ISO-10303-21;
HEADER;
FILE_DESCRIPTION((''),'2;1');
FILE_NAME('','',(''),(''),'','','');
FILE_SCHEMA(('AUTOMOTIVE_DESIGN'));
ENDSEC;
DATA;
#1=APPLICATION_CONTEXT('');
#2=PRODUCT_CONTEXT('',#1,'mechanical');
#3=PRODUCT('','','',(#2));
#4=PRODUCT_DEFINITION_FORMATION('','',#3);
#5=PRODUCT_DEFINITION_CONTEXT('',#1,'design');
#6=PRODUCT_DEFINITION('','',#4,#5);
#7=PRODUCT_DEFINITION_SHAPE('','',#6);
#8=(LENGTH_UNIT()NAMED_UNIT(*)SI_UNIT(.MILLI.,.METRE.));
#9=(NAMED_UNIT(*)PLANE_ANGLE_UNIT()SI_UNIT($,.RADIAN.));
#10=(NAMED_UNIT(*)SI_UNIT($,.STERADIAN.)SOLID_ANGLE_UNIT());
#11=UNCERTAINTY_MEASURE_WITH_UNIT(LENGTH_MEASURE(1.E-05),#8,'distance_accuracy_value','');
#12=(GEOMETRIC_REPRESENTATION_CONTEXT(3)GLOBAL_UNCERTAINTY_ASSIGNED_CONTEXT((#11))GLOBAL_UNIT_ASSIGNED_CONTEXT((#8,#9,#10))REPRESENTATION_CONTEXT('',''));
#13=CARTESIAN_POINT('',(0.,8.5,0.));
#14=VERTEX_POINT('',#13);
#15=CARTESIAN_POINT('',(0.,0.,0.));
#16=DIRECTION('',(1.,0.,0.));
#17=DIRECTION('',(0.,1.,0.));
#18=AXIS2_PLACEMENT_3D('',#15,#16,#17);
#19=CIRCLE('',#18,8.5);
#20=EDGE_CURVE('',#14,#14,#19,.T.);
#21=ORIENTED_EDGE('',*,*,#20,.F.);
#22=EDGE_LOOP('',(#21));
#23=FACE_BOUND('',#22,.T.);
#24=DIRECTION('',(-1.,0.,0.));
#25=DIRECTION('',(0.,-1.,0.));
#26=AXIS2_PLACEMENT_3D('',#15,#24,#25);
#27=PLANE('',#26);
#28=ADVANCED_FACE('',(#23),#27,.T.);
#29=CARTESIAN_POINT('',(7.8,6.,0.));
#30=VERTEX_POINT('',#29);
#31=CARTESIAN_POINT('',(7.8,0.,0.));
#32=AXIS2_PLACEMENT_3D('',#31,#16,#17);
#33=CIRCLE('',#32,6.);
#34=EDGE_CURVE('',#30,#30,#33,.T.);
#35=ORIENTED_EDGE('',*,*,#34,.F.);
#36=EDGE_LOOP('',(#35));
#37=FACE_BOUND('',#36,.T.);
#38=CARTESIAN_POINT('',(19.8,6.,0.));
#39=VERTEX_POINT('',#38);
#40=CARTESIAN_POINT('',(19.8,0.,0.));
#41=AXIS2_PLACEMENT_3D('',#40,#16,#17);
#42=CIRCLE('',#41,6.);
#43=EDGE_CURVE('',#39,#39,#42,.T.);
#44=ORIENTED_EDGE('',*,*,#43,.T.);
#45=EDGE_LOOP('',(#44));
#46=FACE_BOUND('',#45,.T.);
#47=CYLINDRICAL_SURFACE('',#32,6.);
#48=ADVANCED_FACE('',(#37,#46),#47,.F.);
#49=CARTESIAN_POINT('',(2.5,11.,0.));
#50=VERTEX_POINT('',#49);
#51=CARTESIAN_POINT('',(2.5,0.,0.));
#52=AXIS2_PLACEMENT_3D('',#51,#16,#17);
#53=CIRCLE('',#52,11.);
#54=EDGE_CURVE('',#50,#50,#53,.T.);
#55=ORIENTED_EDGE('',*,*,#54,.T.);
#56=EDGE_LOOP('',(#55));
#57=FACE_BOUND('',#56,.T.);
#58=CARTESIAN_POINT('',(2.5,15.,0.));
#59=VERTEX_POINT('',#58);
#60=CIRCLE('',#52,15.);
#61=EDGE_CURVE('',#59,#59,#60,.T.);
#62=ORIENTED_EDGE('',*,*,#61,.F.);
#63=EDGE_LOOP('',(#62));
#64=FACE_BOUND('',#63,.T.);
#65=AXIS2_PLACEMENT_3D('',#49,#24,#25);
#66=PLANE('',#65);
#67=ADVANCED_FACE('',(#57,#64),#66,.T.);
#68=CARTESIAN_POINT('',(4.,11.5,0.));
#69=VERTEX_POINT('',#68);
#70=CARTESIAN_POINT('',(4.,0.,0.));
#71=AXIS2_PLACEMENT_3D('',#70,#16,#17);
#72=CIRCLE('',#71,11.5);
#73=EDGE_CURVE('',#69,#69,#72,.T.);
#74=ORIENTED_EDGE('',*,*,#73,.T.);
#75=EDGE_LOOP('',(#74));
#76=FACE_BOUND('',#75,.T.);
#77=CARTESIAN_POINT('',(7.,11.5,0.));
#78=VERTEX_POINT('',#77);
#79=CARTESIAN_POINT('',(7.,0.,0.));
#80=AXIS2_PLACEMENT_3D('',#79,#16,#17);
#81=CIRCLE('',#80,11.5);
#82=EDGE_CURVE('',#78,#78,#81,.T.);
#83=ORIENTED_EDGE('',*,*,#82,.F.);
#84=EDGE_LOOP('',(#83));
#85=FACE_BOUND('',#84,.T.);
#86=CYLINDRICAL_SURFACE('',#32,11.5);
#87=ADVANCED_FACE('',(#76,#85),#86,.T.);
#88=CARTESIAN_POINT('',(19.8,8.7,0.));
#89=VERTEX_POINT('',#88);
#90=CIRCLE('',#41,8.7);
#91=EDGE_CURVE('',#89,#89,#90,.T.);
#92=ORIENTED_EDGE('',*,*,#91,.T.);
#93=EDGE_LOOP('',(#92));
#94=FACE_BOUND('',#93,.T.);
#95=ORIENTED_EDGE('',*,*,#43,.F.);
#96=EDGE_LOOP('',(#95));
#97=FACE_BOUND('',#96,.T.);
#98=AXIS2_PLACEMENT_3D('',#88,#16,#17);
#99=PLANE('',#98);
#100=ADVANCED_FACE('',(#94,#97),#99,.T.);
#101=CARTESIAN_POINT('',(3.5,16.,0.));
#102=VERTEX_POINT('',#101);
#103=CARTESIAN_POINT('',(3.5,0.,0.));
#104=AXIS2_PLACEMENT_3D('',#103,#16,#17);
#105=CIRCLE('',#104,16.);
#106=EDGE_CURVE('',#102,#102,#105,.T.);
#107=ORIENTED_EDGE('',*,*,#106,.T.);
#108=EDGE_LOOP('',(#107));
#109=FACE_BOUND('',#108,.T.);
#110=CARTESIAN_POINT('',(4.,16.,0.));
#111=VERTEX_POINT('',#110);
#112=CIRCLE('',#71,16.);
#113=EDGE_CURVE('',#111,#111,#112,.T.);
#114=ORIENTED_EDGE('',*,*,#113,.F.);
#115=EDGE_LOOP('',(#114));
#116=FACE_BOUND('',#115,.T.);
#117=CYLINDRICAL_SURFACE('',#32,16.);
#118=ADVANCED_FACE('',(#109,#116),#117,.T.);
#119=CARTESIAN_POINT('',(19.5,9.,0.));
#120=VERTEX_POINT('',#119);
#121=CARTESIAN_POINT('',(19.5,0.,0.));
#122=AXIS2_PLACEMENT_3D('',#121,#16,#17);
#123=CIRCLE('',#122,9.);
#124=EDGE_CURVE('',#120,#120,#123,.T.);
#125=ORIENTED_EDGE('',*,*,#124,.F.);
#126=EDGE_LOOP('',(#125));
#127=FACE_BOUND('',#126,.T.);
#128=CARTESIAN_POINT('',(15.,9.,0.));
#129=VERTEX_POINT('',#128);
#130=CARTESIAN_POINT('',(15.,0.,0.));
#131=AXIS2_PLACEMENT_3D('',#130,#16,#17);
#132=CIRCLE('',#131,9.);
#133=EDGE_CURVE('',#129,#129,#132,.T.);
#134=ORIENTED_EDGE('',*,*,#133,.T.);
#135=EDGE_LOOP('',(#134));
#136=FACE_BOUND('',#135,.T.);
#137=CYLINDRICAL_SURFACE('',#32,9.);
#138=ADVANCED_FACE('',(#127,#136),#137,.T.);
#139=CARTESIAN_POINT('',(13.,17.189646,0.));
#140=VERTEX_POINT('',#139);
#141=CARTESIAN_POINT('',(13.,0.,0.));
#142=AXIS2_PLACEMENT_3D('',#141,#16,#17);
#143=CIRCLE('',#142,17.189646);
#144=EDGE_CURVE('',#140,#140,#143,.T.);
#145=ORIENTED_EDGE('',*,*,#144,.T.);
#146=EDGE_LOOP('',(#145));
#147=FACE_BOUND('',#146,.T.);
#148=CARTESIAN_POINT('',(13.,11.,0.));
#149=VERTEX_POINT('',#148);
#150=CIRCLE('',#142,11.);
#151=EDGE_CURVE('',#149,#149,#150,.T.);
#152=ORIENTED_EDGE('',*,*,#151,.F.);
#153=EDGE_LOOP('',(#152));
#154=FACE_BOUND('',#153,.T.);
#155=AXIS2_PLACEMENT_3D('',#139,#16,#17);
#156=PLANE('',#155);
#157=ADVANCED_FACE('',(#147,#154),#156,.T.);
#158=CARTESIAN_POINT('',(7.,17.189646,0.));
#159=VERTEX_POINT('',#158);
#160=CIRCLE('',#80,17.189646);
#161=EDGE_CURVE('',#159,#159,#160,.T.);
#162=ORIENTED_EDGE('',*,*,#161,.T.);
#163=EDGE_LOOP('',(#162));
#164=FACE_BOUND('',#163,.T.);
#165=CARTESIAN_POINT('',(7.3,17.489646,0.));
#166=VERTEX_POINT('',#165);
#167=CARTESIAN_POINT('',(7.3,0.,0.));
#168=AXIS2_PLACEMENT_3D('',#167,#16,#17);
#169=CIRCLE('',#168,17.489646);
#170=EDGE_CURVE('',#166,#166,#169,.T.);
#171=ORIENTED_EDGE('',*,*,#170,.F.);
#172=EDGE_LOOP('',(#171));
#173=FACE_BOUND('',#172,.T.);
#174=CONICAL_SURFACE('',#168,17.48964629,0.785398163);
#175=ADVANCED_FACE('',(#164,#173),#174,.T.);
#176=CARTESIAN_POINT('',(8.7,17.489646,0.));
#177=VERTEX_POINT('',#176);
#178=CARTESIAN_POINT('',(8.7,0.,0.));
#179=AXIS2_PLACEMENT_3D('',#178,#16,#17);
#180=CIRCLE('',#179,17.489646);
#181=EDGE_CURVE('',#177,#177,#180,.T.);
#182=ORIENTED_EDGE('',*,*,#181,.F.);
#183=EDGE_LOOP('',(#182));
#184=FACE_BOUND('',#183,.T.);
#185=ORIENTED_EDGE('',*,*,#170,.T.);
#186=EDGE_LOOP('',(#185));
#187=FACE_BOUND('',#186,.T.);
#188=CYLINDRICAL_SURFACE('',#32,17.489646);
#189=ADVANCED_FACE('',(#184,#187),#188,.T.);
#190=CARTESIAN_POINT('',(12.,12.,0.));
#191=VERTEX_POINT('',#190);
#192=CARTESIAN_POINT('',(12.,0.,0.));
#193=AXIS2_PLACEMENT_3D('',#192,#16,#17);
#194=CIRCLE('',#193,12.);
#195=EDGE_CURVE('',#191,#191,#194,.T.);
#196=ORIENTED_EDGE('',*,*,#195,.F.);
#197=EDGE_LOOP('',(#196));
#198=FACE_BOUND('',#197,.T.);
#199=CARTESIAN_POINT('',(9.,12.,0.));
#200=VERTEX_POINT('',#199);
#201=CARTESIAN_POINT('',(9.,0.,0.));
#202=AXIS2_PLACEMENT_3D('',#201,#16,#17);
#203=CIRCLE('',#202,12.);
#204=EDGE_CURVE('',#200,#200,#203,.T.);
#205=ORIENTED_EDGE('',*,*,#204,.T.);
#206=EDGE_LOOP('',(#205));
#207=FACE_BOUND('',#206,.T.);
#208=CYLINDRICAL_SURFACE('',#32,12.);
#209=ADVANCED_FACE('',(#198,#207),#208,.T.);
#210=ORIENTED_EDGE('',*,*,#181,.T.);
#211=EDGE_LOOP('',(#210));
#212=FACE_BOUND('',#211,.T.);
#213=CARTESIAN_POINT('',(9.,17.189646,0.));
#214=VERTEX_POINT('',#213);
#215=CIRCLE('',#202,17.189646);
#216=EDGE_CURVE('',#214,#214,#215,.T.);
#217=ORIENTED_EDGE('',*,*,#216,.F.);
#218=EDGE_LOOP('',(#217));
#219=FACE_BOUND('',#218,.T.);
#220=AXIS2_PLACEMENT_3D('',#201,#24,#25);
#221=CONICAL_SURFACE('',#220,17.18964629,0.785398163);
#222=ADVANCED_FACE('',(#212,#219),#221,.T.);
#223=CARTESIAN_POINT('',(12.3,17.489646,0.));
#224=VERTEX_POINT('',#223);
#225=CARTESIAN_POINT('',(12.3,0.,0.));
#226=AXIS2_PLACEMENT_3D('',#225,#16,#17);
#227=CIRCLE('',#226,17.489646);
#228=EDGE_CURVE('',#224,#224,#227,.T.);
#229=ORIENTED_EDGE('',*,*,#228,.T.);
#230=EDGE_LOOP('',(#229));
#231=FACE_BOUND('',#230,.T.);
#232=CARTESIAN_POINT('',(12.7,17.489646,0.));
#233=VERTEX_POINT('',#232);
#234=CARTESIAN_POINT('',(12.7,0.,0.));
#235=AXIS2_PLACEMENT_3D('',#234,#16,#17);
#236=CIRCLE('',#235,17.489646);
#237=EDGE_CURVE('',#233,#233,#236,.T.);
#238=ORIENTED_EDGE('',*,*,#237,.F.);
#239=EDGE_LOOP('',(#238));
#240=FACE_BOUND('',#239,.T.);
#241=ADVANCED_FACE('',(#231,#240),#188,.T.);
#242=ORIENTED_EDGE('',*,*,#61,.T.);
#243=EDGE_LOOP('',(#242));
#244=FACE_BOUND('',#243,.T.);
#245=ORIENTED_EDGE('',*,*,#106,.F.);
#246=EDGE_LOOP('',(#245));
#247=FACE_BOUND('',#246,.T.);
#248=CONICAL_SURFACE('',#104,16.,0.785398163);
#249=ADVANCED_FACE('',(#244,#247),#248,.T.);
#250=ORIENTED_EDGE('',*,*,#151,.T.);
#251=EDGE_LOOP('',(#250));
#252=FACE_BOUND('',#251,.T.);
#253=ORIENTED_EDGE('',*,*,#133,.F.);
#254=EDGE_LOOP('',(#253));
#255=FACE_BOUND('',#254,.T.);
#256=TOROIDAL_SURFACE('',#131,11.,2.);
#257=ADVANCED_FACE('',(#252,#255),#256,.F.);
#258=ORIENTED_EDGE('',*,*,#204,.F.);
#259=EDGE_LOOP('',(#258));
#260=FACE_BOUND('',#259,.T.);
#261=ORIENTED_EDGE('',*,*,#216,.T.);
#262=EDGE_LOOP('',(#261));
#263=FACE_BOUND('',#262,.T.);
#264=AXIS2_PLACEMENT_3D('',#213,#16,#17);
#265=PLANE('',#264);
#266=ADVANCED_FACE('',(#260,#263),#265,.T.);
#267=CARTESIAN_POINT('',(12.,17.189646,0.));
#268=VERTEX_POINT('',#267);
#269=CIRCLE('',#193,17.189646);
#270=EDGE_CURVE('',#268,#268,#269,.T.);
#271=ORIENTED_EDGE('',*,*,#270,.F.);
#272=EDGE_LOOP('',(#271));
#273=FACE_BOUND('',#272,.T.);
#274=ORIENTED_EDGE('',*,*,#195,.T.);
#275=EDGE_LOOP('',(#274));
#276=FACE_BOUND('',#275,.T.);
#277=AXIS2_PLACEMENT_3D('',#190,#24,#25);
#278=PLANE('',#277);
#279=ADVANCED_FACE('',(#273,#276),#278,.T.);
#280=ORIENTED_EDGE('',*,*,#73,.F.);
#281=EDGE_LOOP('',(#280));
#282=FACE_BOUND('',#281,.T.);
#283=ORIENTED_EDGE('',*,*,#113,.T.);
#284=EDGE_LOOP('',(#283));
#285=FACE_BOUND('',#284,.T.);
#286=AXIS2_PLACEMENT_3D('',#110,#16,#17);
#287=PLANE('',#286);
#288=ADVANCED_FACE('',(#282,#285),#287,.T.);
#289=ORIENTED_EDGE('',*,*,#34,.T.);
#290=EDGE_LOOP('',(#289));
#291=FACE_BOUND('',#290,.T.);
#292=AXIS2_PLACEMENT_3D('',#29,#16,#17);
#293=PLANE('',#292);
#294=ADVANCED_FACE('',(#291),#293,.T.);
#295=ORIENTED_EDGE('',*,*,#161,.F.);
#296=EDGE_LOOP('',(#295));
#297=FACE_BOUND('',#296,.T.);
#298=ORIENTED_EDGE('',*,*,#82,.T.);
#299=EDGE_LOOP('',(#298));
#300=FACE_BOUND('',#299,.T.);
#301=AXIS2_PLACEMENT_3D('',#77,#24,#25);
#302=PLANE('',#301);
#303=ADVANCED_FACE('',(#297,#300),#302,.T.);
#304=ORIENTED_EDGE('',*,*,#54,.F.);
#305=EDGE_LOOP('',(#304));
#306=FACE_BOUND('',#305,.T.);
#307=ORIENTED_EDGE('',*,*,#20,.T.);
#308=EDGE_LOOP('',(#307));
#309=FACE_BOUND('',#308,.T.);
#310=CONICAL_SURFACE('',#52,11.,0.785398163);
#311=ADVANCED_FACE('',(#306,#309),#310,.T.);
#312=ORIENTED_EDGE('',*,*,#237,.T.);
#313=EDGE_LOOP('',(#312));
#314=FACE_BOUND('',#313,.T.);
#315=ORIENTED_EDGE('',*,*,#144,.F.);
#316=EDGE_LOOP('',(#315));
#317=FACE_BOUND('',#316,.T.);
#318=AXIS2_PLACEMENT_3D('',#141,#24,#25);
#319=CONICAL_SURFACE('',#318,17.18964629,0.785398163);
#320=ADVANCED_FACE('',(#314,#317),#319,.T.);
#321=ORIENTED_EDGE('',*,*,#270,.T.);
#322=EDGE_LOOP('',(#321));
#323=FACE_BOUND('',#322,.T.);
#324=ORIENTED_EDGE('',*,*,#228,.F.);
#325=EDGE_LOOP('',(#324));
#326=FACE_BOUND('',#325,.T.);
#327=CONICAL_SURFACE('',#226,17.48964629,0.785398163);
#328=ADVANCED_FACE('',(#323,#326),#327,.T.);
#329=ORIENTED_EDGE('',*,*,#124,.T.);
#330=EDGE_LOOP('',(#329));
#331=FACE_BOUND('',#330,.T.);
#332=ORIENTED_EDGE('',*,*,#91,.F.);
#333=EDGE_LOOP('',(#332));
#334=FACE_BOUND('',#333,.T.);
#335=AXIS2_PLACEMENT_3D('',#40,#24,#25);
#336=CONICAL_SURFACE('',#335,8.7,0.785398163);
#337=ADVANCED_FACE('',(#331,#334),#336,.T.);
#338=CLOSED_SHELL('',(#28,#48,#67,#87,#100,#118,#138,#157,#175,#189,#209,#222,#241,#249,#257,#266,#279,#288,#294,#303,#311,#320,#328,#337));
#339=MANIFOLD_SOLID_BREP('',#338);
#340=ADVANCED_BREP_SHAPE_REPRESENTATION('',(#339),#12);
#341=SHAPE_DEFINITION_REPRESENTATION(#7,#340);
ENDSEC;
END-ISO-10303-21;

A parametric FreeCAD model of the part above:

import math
import FreeCAD as App
import Part
import Sketcher
from FreeCAD import Vector

doc = App.newDocument("Part")
params = doc.addObject("Spreadsheet::Sheet", "Params")
for row, (alias, value) in enumerate([
    ("sketch1_radius", "2 mm"),
    ("sketch1_width", "12 mm"),
    ("sketch1_width2", "3 mm"),
    ("sketch1_height", "6 mm"),
    ("sketch1_height2", "4 mm"),
    ("revolution_angle", "360 deg"),
], start=1):
    params.set(f"A{row}", alias)
    params.set(f"B{row}", "=" + value)
    params.setAlias(f"B{row}", alias)

body = doc.addObject("PartDesign::Body", "Body")

# Sketch on XY plane
sketch1 = body.newObject("Sketcher::SketchObject", "Sketch")
sketch1.AttachmentSupport = (doc.getObject("XY_Plane"), [""])
sketch1.MapMode = "FlatFace"
sketch1.addGeometry([
    Part.LineSegment(Vector(0, 8.5, 0), Vector(0, 0, 0)),  # 0
    Part.LineSegment(Vector(0, 0, 0), Vector(7.8, 0, 0)),  # 1
    Part.LineSegment(Vector(7.8, 0, 0), Vector(7.8, 6, 0)),  # 2
    Part.LineSegment(Vector(7.8, 6, 0), Vector(19.8, 6, 0)),  # 3
    Part.LineSegment(Vector(19.8, 6, 0), Vector(19.8, 8.7, 0)),  # 4
    Part.LineSegment(Vector(19.8, 8.7, 0), Vector(19.5, 9, 0)),  # 5
    Part.LineSegment(Vector(19.5, 9, 0), Vector(15, 9, 0)),  # 6
    Part.ArcOfCircle(Part.Circle(Vector(15, 11, 0), Vector(0, 0, 1), 2), math.radians(-180), math.radians(-90)),  # 7
    Part.LineSegment(Vector(13, 11, 0), Vector(13, 17.19, 0)),  # 8
    Part.LineSegment(Vector(13, 17.19, 0), Vector(12.7, 17.49, 0)),  # 9
    Part.LineSegment(Vector(12.7, 17.49, 0), Vector(12.3, 17.49, 0)),  # 10
    Part.LineSegment(Vector(12.3, 17.49, 0), Vector(12, 17.19, 0)),  # 11
    Part.LineSegment(Vector(12, 17.19, 0), Vector(12, 12, 0)),  # 12
    Part.LineSegment(Vector(12, 12, 0), Vector(9, 12, 0)),  # 13
    Part.LineSegment(Vector(9, 12, 0), Vector(9, 17.19, 0)),  # 14
    Part.LineSegment(Vector(9, 17.19, 0), Vector(8.7, 17.49, 0)),  # 15
    Part.LineSegment(Vector(8.7, 17.49, 0), Vector(7.3, 17.49, 0)),  # 16
    Part.LineSegment(Vector(7.3, 17.49, 0), Vector(7, 17.19, 0)),  # 17
    Part.LineSegment(Vector(7, 17.19, 0), Vector(7, 11.5, 0)),  # 18
    Part.LineSegment(Vector(7, 11.5, 0), Vector(4, 11.5, 0)),  # 19
    Part.LineSegment(Vector(4, 11.5, 0), Vector(4, 16, 0)),  # 20
    Part.LineSegment(Vector(4, 16, 0), Vector(3.5, 16, 0)),  # 21
    Part.LineSegment(Vector(3.5, 16, 0), Vector(2.5, 15, 0)),  # 22
    Part.LineSegment(Vector(2.5, 15, 0), Vector(2.5, 11, 0)),  # 23
    Part.LineSegment(Vector(2.5, 11, 0), Vector(0, 8.5, 0)),  # 24
], False)
sketch1.addConstraint([
    Sketcher.Constraint("Coincident", 0, 2, 1, 1),
    Sketcher.Constraint("Coincident", 1, 2, 2, 1),
    Sketcher.Constraint("Coincident", 2, 2, 3, 1),
    Sketcher.Constraint("Coincident", 3, 2, 4, 1),
    Sketcher.Constraint("Coincident", 4, 2, 5, 1),
    Sketcher.Constraint("Coincident", 5, 2, 6, 1),
    Sketcher.Constraint("Tangent", 6, 2, 7, 2),
    Sketcher.Constraint("Tangent", 7, 1, 8, 1),
    Sketcher.Constraint("Coincident", 8, 2, 9, 1),
    Sketcher.Constraint("Coincident", 9, 2, 10, 1),
    Sketcher.Constraint("Coincident", 10, 2, 11, 1),
    Sketcher.Constraint("Coincident", 11, 2, 12, 1),
    Sketcher.Constraint("Coincident", 12, 2, 13, 1),
    Sketcher.Constraint("Coincident", 13, 2, 14, 1),
    Sketcher.Constraint("Coincident", 14, 2, 15, 1),
    Sketcher.Constraint("Coincident", 15, 2, 16, 1),
    Sketcher.Constraint("Coincident", 16, 2, 17, 1),
    Sketcher.Constraint("Coincident", 17, 2, 18, 1),
    Sketcher.Constraint("Coincident", 18, 2, 19, 1),
    Sketcher.Constraint("Coincident", 19, 2, 20, 1),
    Sketcher.Constraint("Coincident", 20, 2, 21, 1),
    Sketcher.Constraint("Coincident", 21, 2, 22, 1),
    Sketcher.Constraint("Coincident", 22, 2, 23, 1),
    Sketcher.Constraint("Coincident", 23, 2, 24, 1),
    Sketcher.Constraint("Coincident", 24, 2, 0, 1),
    Sketcher.Constraint("Vertical", 0),
    Sketcher.Constraint("Horizontal", 1),
    Sketcher.Constraint("Vertical", 2),
    Sketcher.Constraint("Horizontal", 3),
    Sketcher.Constraint("Vertical", 4),
    Sketcher.Constraint("Horizontal", 6),
    Sketcher.Constraint("Vertical", 8),
    Sketcher.Constraint("Horizontal", 10),
    Sketcher.Constraint("Vertical", 12),
    Sketcher.Constraint("Horizontal", 13),
    Sketcher.Constraint("Vertical", 14),
    Sketcher.Constraint("Horizontal", 16),
    Sketcher.Constraint("Vertical", 18),
    Sketcher.Constraint("Horizontal", 19),
    Sketcher.Constraint("Vertical", 20),
    Sketcher.Constraint("Horizontal", 21),
    Sketcher.Constraint("Vertical", 23),
    Sketcher.Constraint("Coincident", 0, 2, -1, 1),
    Sketcher.Constraint("Parallel", 5, 9),
    Sketcher.Constraint("Perpendicular", 9, 11),
    Sketcher.Constraint("Perpendicular", 11, 15),
    Sketcher.Constraint("Perpendicular", 15, 17),
    Sketcher.Constraint("Parallel", 17, 22),
    Sketcher.Constraint("Parallel", 22, 24),
    Sketcher.Constraint("Horizontal", 8, 2, 11, 2),
    Sketcher.Constraint("Horizontal", 11, 2, 14, 2),
    Sketcher.Constraint("Horizontal", 10, 2, 15, 2),
    Sketcher.Constraint("Horizontal", 14, 2, 17, 2),
    Sketcher.Constraint("Horizontal", 7, 1, 23, 2),
    Sketcher.Constraint("Equal", 13, 19),
    Sketcher.Constraint("Equal", 6, 20),
    Sketcher.Constraint("Equal", 5, 9),
    Sketcher.Constraint("Equal", 9, 11),
    Sketcher.Constraint("Radius", 7, 2.0),
    Sketcher.Constraint("DistanceX", 3, 1, 3, 2, 12.0),
    Sketcher.Constraint("DistanceX", 13, 2, 13, 1, 3.0),
    Sketcher.Constraint("DistanceY", 2, 1, 2, 2, 6.0),
    Sketcher.Constraint("DistanceY", 23, 2, 23, 1, 4.0),
    Sketcher.Constraint("DistanceX", 1, 1, 1, 2, 7.8),
    Sketcher.Constraint("DistanceX", 6, 2, 6, 1, 4.5),
    Sketcher.Constraint("DistanceX", 10, 2, 10, 1, 0.4),
    Sketcher.Constraint("DistanceX", 16, 2, 16, 1, 1.4),
    Sketcher.Constraint("DistanceX", 21, 2, 21, 1, 0.5),
    Sketcher.Constraint("DistanceY", 0, 2, 0, 1, 8.5),
    Sketcher.Constraint("DistanceY", 4, 1, 4, 2, 2.7),
    Sketcher.Constraint("DistanceX", -1, 1, 7, 3, 15.0),
    Sketcher.Constraint("DistanceY", -1, 1, 12, 2, 12.0),
    Sketcher.Constraint("DistanceY", 8, 1, 8, 2, 6.189646),
])
sketch1.setExpression("Constraints[58]", "Params.sketch1_radius")
sketch1.setExpression("Constraints[59]", "Params.sketch1_width")
sketch1.setExpression("Constraints[60]", "Params.sketch1_width2")
sketch1.setExpression("Constraints[61]", "Params.sketch1_height")
sketch1.setExpression("Constraints[62]", "Params.sketch1_height2")
revolution = body.newObject("PartDesign::Revolution", "Revolution")
revolution.Profile = sketch1
revolution.ReferenceAxis = (sketch1, ["H_Axis"])
revolution.setExpression("Angle", "Params.revolution_angle")

doc.recompute()
